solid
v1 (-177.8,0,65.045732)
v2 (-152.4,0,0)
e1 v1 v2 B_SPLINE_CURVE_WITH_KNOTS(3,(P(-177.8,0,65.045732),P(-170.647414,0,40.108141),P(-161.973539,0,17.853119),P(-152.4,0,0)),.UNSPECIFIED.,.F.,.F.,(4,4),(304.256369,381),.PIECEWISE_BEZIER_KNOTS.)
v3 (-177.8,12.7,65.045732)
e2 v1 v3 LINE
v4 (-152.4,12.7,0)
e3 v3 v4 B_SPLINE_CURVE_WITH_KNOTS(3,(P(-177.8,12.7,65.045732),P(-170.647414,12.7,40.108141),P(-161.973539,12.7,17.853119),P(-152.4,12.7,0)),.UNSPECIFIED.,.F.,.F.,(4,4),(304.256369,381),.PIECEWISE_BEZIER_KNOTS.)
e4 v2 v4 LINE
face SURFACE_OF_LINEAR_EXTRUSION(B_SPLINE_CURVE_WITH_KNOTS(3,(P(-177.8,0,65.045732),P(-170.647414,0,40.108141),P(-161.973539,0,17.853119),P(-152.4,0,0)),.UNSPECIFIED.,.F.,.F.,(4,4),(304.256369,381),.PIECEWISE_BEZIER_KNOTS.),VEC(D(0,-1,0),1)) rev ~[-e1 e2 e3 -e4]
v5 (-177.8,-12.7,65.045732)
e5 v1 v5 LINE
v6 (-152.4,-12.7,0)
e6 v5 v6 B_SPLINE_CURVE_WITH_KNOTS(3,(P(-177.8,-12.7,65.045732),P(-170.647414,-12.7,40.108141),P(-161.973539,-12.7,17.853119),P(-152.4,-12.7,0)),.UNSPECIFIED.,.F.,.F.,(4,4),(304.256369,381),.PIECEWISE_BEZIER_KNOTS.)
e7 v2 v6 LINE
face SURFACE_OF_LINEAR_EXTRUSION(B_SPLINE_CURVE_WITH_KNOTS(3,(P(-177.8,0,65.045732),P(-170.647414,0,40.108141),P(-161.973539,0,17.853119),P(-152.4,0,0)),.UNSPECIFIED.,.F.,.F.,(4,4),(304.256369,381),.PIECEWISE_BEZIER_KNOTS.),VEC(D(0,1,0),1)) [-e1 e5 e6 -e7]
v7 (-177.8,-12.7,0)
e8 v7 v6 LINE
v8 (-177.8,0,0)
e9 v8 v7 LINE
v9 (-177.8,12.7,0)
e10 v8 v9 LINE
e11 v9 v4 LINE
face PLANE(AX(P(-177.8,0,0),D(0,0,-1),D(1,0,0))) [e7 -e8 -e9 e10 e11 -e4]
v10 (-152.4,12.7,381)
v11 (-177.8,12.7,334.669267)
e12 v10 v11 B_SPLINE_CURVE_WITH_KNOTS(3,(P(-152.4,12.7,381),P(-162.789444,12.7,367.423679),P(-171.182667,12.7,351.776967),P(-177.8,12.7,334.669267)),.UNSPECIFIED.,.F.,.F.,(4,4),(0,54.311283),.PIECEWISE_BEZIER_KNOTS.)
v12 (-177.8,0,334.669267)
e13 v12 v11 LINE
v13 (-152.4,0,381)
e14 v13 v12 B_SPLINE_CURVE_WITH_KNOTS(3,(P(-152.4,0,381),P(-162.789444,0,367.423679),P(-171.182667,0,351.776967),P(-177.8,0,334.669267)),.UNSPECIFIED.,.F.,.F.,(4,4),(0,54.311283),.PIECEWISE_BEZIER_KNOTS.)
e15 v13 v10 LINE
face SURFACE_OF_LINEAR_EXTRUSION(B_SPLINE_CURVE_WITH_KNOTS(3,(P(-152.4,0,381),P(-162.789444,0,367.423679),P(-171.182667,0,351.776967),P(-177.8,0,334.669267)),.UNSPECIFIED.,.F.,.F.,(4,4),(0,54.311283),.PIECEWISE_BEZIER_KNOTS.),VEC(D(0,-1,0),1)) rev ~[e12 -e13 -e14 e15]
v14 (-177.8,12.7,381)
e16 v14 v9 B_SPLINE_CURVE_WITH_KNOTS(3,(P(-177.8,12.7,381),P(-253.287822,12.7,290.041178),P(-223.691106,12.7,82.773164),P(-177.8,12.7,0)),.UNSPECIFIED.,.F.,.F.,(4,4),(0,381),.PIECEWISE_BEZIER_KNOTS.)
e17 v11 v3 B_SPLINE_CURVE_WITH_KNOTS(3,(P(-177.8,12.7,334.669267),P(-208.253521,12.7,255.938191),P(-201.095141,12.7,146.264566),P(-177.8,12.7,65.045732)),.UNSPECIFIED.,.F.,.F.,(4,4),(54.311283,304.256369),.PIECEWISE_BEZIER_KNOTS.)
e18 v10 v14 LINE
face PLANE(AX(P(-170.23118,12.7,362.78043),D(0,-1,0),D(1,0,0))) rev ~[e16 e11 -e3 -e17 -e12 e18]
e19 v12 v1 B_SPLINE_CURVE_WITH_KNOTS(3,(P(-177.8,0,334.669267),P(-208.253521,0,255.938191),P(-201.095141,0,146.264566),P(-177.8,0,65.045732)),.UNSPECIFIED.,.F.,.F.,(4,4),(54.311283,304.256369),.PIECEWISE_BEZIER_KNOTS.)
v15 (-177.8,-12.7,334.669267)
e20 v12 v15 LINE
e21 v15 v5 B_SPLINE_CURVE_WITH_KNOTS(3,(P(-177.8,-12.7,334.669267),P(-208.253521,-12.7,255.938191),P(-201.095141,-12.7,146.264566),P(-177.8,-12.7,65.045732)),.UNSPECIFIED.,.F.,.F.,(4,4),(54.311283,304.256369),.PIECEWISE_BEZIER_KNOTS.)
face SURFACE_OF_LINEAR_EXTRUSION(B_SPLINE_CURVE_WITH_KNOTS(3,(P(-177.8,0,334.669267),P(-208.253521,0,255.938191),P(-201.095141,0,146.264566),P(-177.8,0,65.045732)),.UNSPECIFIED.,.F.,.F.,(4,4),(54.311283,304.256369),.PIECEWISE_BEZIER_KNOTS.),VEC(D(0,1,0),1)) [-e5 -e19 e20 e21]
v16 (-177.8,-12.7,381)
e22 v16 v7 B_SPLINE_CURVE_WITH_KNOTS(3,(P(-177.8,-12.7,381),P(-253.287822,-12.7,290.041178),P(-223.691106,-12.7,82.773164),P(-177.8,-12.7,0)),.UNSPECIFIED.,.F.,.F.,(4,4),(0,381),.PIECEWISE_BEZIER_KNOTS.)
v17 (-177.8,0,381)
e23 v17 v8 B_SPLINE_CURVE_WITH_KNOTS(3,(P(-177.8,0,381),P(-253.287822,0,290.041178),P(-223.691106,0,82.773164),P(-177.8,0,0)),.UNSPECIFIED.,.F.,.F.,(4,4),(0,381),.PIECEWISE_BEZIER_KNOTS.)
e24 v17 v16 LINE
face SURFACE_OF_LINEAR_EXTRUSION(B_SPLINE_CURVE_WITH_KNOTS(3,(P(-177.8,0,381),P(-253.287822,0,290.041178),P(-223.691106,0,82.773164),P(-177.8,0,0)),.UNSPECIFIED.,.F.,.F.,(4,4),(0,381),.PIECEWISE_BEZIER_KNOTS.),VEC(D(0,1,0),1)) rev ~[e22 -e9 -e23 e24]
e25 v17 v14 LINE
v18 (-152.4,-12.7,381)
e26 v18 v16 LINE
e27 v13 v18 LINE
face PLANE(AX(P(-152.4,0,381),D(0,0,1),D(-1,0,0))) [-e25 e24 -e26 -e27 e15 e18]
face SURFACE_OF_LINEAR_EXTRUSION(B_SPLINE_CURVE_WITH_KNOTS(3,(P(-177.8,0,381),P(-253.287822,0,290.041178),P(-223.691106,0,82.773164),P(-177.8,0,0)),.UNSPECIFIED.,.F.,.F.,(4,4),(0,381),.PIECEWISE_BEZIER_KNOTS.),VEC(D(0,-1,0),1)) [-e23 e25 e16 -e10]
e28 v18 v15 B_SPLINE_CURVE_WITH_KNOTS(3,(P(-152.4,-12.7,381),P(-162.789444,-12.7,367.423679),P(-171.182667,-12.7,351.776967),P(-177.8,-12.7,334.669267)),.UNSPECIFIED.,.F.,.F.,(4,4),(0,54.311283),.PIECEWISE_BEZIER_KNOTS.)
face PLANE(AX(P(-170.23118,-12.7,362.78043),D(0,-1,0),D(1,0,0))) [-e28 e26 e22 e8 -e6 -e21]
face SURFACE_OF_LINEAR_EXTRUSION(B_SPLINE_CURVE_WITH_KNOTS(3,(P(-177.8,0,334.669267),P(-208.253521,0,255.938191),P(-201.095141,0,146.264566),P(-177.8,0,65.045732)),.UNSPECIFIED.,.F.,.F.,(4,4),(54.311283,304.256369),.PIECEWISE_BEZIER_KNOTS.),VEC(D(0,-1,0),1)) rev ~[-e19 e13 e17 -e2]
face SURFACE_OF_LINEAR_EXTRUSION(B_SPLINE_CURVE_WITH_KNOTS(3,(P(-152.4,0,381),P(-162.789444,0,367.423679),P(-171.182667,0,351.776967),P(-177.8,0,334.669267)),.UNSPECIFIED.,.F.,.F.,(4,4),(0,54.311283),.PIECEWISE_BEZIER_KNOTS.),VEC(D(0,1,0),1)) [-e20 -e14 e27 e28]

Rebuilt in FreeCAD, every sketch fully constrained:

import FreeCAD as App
import Part
import Sketcher

V = App.Vector
Q = App.Units.Quantity

doc = App.newDocument("Part")
body = doc.addObject("PartDesign::Body", "Body")

sketch1 = body.newObject("Sketcher::SketchObject", "Sketch")
sketch1.AttachmentSupport = (doc.getObject("XZ_Plane"), [""])
sketch1.MapMode = "FlatFace"
sketch1.addGeometry(Part.LineSegment(V(-152.4, 381, 0), V(-177.8, 381, 0)), False)
sketch1.addGeometry(Part.BSplineCurve([V(-177.8, 381, 0), V(-253.287822, 290.041178, 0), V(-223.691106, 82.773164, 0), V(-177.8, 0, 0)], [4, 4], [0, 381], False, 3, [1, 1, 1, 1], False), False)
sketch1.addGeometry(Part.LineSegment(V(-177.8, 0, 0), V(-152.4, 0, 0)), False)
sketch1.addGeometry(Part.BSplineCurve([V(-177.8, 65.045732, 0), V(-170.647414, 40.108141, 0), V(-161.973539, 17.853119, 0), V(-152.4, 0, 0)], [4, 4], [304.256369, 381], False, 3, [1, 1, 1, 1], False), False)
sketch1.addGeometry(Part.BSplineCurve([V(-177.8, 334.669267, 0), V(-208.253521, 255.938191, 0), V(-201.095141, 146.264566, 0), V(-177.8, 65.045732, 0)], [4, 4], [54.311283, 304.256369], False, 3, [1, 1, 1, 1], False), False)
sketch1.addGeometry(Part.BSplineCurve([V(-152.4, 381, 0), V(-162.789444, 367.423679, 0), V(-171.182667, 351.776967, 0), V(-177.8, 334.669267, 0)], [4, 4], [0, 54.311283], False, 3, [1, 1, 1, 1], False), False)
sketch1.addConstraint(Sketcher.Constraint("Block", 1))
sketch1.addConstraint(Sketcher.Constraint("Block", 3))
sketch1.addConstraint(Sketcher.Constraint("Block", 4))
sketch1.addConstraint(Sketcher.Constraint("Block", 5))
sketch1.addConstraint(Sketcher.Constraint("Coincident", 0, 2, 1, 1))
sketch1.addConstraint(Sketcher.Constraint("Coincident", 1, 2, 2, 1))
sketch1.addConstraint(Sketcher.Constraint("Coincident", 2, 2, 3, 2))
sketch1.addConstraint(Sketcher.Constraint("Coincident", 5, 1, 0, 1))
pad1 = body.newObject("PartDesign::Pad", "Pad")
pad1.Profile = sketch1
pad1.Length = Q("1 in")
pad1.Midplane = True

doc.recompute()
